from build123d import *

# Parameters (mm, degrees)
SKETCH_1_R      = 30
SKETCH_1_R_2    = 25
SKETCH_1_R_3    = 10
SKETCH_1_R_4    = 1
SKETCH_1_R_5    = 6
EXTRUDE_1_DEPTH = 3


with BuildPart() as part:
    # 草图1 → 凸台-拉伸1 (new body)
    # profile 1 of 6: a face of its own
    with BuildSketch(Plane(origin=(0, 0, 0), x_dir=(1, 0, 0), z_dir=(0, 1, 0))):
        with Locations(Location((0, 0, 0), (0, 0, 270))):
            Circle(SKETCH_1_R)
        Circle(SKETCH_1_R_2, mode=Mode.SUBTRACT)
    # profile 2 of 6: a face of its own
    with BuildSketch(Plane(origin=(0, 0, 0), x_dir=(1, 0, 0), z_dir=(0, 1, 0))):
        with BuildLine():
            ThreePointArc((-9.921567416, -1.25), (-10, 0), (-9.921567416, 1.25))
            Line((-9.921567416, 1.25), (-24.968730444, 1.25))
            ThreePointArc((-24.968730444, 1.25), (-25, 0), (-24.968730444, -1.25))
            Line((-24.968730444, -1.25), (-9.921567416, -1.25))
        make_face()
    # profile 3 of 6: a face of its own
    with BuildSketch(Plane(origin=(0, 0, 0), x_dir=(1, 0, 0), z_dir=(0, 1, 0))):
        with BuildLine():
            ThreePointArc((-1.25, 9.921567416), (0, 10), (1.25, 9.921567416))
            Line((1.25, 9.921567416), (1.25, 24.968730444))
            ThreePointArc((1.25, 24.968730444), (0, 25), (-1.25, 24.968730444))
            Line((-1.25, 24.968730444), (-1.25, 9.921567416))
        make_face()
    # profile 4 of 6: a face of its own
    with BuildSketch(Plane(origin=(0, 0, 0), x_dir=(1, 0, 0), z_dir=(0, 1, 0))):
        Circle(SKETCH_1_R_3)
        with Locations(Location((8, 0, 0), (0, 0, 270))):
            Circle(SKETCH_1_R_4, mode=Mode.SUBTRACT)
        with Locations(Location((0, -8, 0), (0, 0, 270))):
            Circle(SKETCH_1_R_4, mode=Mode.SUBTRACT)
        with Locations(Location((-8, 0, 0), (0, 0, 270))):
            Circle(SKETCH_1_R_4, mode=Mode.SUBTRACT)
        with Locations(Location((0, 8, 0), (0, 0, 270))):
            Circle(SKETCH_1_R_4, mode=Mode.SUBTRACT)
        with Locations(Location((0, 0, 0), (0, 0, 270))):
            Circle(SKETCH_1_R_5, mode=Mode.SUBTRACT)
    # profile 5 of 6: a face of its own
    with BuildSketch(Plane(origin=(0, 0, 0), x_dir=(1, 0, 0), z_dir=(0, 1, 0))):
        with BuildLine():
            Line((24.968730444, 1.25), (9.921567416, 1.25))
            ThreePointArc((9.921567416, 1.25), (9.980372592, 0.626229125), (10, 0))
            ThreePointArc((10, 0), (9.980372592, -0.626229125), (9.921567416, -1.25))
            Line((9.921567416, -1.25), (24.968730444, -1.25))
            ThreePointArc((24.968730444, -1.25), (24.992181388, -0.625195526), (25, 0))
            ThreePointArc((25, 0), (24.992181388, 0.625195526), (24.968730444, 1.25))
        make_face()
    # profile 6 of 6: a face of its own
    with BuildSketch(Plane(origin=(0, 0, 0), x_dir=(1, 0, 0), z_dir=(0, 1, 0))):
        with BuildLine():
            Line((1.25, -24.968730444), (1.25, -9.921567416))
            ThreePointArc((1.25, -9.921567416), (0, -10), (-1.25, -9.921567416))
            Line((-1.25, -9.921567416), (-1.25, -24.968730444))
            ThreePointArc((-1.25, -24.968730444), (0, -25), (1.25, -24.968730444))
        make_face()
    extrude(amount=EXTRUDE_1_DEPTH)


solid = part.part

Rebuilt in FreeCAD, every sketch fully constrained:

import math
import FreeCAD as App
import Part
import Sketcher
from FreeCAD import Vector
Q = App.Units.Quantity

doc = App.newDocument("Part")
params = doc.addObject("Spreadsheet::Sheet", "Params")
for row, (alias, value) in enumerate([
    ("sketch1_diameter", "60 mm"),
    ("sketch1_diameter2", "2 mm"),
    ("sketch1_diameter3", "12 mm"),
    ("sketch1_radius", "25 mm"),
    ("sketch1_radius2", "10 mm"),
    ("pad1_length", "3 mm"),
], start=1):
    params.set(f"A{row}", alias)
    params.set(f"B{row}", "=" + value)
    params.setAlias(f"B{row}", alias)

body = doc.addObject("PartDesign::Body", "Body")

# Sketch on XZ plane
sketch1 = body.newObject("Sketcher::SketchObject", "Sketch")
sketch1.AttachmentSupport = (doc.getObject("XZ_Plane"), [""])
sketch1.MapMode = "FlatFace"
sketch1.addGeometry([
    Part.Circle(Vector(0, 0, 0), Vector(0, 0, 1), 30),  # 0
    Part.ArcOfCircle(Part.Circle(Vector(0, 0, 0), Vector(0, 0, 1), 25), math.radians(-87), math.radians(-3)),  # 1
    Part.LineSegment(Vector(25, -1.2, 0), Vector(9.9, -1.2, 0)),  # 2
    Part.ArcOfCircle(Part.Circle(Vector(0, 0, 0), Vector(0, 0, 1), 10), math.radians(-83), math.radians(-7)),  # 3
    Part.LineSegment(Vector(1.2, -9.9, 0), Vector(1.2, -25, 0)),  # 4
    Part.ArcOfCircle(Part.Circle(Vector(0, 0, 0), Vector(0, 0, 1), 25), math.radians(-177), math.radians(-93)),  # 5
    Part.LineSegment(Vector(-1.2, -25, 0), Vector(-1.2, -9.9, 0)),  # 6
    Part.ArcOfCircle(Part.Circle(Vector(0, 0, 0), Vector(0, 0, 1), 10), math.radians(-173), math.radians(-97)),  # 7
    Part.LineSegment(Vector(-9.9, -1.2, 0), Vector(-25, -1.2, 0)),  # 8
    Part.ArcOfCircle(Part.Circle(Vector(0, 0, 0), Vector(0, 0, 1), 25), math.radians(93), math.radians(177)),  # 9
    Part.LineSegment(Vector(-25, 1.2, 0), Vector(-9.9, 1.2, 0)),  # 10
    Part.ArcOfCircle(Part.Circle(Vector(0, 0, 0), Vector(0, 0, 1), 10), math.radians(97), math.radians(173)),  # 11
    Part.LineSegment(Vector(-1.2, 9.9, 0), Vector(-1.2, 25, 0)),  # 12
    Part.ArcOfCircle(Part.Circle(Vector(0, 0, 0), Vector(0, 0, 1), 25), math.radians(3), math.radians(87)),  # 13
    Part.LineSegment(Vector(1.2, 25, 0), Vector(1.2, 9.9, 0)),  # 14
    Part.ArcOfCircle(Part.Circle(Vector(0, 0, 0), Vector(0, 0, 1), 10), math.radians(7), math.radians(83)),  # 15
    Part.LineSegment(Vector(9.9, 1.2, 0), Vector(25, 1.2, 0)),  # 16
    Part.Circle(Vector(0, -8, 0), Vector(0, 0, 1), 1),  # 17
    Part.Circle(Vector(0, 0, 0), Vector(0, 0, 1), 6),  # 18
    Part.Circle(Vector(-8, 0, 0), Vector(0, 0, 1), 1),  # 19
    Part.Circle(Vector(0, 8, 0), Vector(0, 0, 1), 1),  # 20
    Part.Circle(Vector(8, 0, 0), Vector(0, 0, 1), 1),  # 21
], False)
sketch1.addConstraint([
    Sketcher.Constraint("Coincident", 1, 2, 2, 1),
    Sketcher.Constraint("Coincident", 2, 2, 3, 2),
    Sketcher.Constraint("Coincident", 3, 1, 4, 1),
    Sketcher.Constraint("Coincident", 4, 2, 1, 1),
    Sketcher.Constraint("Coincident", 5, 2, 6, 1),
    Sketcher.Constraint("Coincident", 6, 2, 7, 2),
    Sketcher.Constraint("Coincident", 7, 1, 8, 1),
    Sketcher.Constraint("Coincident", 8, 2, 5, 1),
    Sketcher.Constraint("Coincident", 9, 2, 10, 1),
    Sketcher.Constraint("Coincident", 10, 2, 11, 2),
    Sketcher.Constraint("Coincident", 11, 1, 12, 1),
    Sketcher.Constraint("Coincident", 12, 2, 9, 1),
    Sketcher.Constraint("Coincident", 13, 2, 14, 1),
    Sketcher.Constraint("Coincident", 14, 2, 15, 2),
    Sketcher.Constraint("Coincident", 15, 1, 16, 1),
    Sketcher.Constraint("Coincident", 16, 2, 13, 1),
    Sketcher.Constraint("Horizontal", 2),
    Sketcher.Constraint("Vertical", 4),
    Sketcher.Constraint("Vertical", 6),
    Sketcher.Constraint("Horizontal", 8),
    Sketcher.Constraint("Horizontal", 10),
    Sketcher.Constraint("Vertical", 12),
    Sketcher.Constraint("Vertical", 14),
    Sketcher.Constraint("Horizontal", 16),
    Sketcher.Constraint("Coincident", 0, 3, -1, 1),
    Sketcher.Constraint("Coincident", 1, 3, -1, 1),
    Sketcher.Constraint("Coincident", 3, 3, -1, 1),
    Sketcher.Constraint("Coincident", 5, 3, -1, 1),
    Sketcher.Constraint("Coincident", 7, 3, -1, 1),
    Sketcher.Constraint("Coincident", 9, 3, -1, 1),
    Sketcher.Constraint("Coincident", 11, 3, -1, 1),
    Sketcher.Constraint("Coincident", 13, 3, -1, 1),
    Sketcher.Constraint("Coincident", 15, 3, -1, 1),
    Sketcher.Constraint("Coincident", 18, 3, -1, 1),
    Sketcher.Constraint("Equal", 1, 5),
    Sketcher.Constraint("Equal", 3, 7),
    Sketcher.Constraint("Equal", 5, 9),
    Sketcher.Constraint("Equal", 7, 11),
    Sketcher.Constraint("Equal", 9, 13),
    Sketcher.Constraint("Equal", 11, 15),
    Sketcher.Constraint("Equal", 17, 19),
    Sketcher.Constraint("Equal", 19, 20),
    Sketcher.Constraint("Equal", 20, 21),
    Sketcher.Constraint("Symmetric", 17, 3, 20, 3, -1, 1),
    Sketcher.Constraint("Symmetric", 19, 3, 21, 3, -1, 1),
    Sketcher.Constraint("PointOnObject", 17, 3, -2),
    Sketcher.Constraint("PointOnObject", 19, 3, -1),
    Sketcher.Constraint("Horizontal", 4, 2, 5, 2),
    Sketcher.Constraint("Horizontal", 2, 2, 7, 1),
    Sketcher.Constraint("Horizontal", 12, 2, 13, 2),
    Sketcher.Constraint("Horizontal", 10, 2, 15, 1),
    Sketcher.Constraint("Vertical", 8, 2, 9, 2),
    Sketcher.Constraint("Vertical", 6, 2, 11, 1),
    Sketcher.Constraint("Equal", 16, 4),
    Sketcher.Constraint("Diameter", 0, Q("60 mm")),
    Sketcher.Constraint("Diameter", 17, Q("2 mm")),
    Sketcher.Constraint("Diameter", 18, Q("12 mm")),
    Sketcher.Constraint("Radius", 1, Q("25 mm")),
    Sketcher.Constraint("Radius", 3, Q("10 mm")),
    Sketcher.Constraint("DistanceY", 17, 3, -1, 1, Q("8 mm")),
    Sketcher.Constraint("DistanceX", 19, 3, -1, 1, Q("8 mm")),
    Sketcher.Constraint("DistanceX", 5, 2, 4, 2, Q("2.5 mm")),
])
sketch1.setExpression("Constraints[54]", "Params.sketch1_diameter")
sketch1.setExpression("Constraints[55]", "Params.sketch1_diameter2")
sketch1.setExpression("Constraints[56]", "Params.sketch1_diameter3")
sketch1.setExpression("Constraints[57]", "Params.sketch1_radius")
sketch1.setExpression("Constraints[58]", "Params.sketch1_radius2")
pad1 = body.newObject("PartDesign::Pad", "Pad")
pad1.Profile = sketch1
pad1.setExpression("Length", "Params.pad1_length")
pad1.Reversed = True

doc.recompute()
